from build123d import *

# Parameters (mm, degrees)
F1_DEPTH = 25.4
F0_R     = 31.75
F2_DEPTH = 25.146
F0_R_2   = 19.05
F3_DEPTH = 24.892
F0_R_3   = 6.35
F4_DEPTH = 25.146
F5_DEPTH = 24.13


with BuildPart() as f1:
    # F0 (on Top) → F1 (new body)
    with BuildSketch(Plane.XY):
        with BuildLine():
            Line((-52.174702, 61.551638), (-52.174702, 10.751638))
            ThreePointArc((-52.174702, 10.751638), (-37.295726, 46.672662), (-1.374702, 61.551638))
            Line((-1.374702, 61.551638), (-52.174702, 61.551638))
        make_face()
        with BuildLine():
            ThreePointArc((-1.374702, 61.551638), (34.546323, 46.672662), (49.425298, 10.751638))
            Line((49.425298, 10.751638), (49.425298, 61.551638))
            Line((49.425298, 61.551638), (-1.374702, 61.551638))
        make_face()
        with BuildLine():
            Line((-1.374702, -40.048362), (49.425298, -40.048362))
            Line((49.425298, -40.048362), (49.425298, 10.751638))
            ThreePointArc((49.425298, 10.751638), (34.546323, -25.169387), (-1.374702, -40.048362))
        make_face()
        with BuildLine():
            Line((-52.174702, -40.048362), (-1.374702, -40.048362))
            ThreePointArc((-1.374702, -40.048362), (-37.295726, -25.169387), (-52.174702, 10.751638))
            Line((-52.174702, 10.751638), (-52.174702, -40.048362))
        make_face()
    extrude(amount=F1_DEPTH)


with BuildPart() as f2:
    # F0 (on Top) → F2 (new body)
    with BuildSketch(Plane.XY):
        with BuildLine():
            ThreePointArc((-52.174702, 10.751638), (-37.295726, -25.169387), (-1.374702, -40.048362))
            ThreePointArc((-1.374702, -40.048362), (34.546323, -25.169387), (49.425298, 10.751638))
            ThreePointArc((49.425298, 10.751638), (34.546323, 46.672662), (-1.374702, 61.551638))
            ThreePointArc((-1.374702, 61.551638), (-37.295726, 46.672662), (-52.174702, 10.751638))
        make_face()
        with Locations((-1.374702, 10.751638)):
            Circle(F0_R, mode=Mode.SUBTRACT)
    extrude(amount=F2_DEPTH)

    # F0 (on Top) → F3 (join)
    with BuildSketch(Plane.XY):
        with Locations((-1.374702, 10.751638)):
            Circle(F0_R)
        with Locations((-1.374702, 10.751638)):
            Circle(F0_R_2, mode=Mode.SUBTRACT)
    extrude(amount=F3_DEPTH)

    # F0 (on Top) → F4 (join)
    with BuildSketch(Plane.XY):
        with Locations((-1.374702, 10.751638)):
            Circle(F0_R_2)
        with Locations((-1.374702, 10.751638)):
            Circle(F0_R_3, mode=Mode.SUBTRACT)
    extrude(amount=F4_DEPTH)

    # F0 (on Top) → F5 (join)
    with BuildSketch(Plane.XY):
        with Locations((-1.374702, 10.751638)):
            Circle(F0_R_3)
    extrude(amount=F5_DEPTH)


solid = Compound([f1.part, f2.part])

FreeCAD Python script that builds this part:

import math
import FreeCAD as App
import Part
import Sketcher
Q = App.Units.Quantity

doc = App.newDocument("Part")
body = doc.addObject("PartDesign::Body", "Body")
body.AllowCompound = True

# Sketch on XY plane
sketch1 = body.newObject("Sketcher::SketchObject", "Sketch")
sketch1.AttachmentSupport = (doc.getObject("XY_Plane"), [""])
sketch1.MapMode = "FlatFace"
sketch1.addGeometry([
    Part.LineSegment(App.Vector(-52, 62, 0), App.Vector(-52, 11, 0)),  # 0
    Part.ArcOfCircle(Part.Circle(App.Vector(-1, 11, 0), App.Vector(0, 0, 1), 51), math.radians(90), math.radians(180)),  # 1
    Part.LineSegment(App.Vector(-1, 62, 0), App.Vector(-52, 62, 0)),  # 2
    Part.ArcOfCircle(Part.Circle(App.Vector(-1, 11, 0), App.Vector(0, 0, 1), 51), math.radians(0), math.radians(90)),  # 3
    Part.LineSegment(App.Vector(49, 11, 0), App.Vector(49, 62, 0)),  # 4
    Part.LineSegment(App.Vector(49, 62, 0), App.Vector(-1, 62, 0)),  # 5
    Part.LineSegment(App.Vector(-1, -40, 0), App.Vector(49, -40, 0)),  # 6
    Part.LineSegment(App.Vector(49, -40, 0), App.Vector(49, 11, 0)),  # 7
    Part.ArcOfCircle(Part.Circle(App.Vector(-1, 11, 0), App.Vector(0, 0, 1), 51), math.radians(-90), math.radians(0)),  # 8
    Part.LineSegment(App.Vector(-52, -40, 0), App.Vector(-1, -40, 0)),  # 9
    Part.ArcOfCircle(Part.Circle(App.Vector(-1, 11, 0), App.Vector(0, 0, 1), 51), math.radians(180), math.radians(270)),  # 10
    Part.LineSegment(App.Vector(-52, 11, 0), App.Vector(-52, -40, 0)),  # 11
], False)
sketch1.addConstraint([
    Sketcher.Constraint("Tangent", 0, 2, 1, 2),
    Sketcher.Constraint("Tangent", 1, 1, 2, 1),
    Sketcher.Constraint("Coincident", 2, 2, 0, 1),
    Sketcher.Constraint("Tangent", 3, 1, 4, 1),
    Sketcher.Constraint("Coincident", 4, 2, 5, 1),
    Sketcher.Constraint("Tangent", 5, 2, 3, 2),
    Sketcher.Constraint("Coincident", 6, 2, 7, 1),
    Sketcher.Constraint("Tangent", 7, 2, 8, 2),
    Sketcher.Constraint("Tangent", 8, 1, 6, 1),
    Sketcher.Constraint("Tangent", 9, 2, 10, 2),
    Sketcher.Constraint("Tangent", 10, 1, 11, 1),
    Sketcher.Constraint("Coincident", 11, 2, 9, 1),
    Sketcher.Constraint("Vertical", 0),
    Sketcher.Constraint("Horizontal", 2),
    Sketcher.Constraint("Vertical", 4),
    Sketcher.Constraint("Horizontal", 5),
    Sketcher.Constraint("Horizontal", 6),
    Sketcher.Constraint("Vertical", 7),
    Sketcher.Constraint("Horizontal", 9),
    Sketcher.Constraint("Vertical", 11),
    Sketcher.Constraint("Coincident", 3, 3, 1, 3),
    Sketcher.Constraint("Coincident", 8, 3, 1, 3),
    Sketcher.Constraint("Coincident", 10, 3, 1, 3),
    Sketcher.Constraint("Equal", 1, 3),
    Sketcher.Constraint("Equal", 3, 8),
    Sketcher.Constraint("Equal", 8, 10),
    Sketcher.Constraint("Radius", 1, Q("2.0000001 in")),
    Sketcher.Constraint("DistanceX", 1, 3, -1, 1, 1.3747),
    Sketcher.Constraint("DistanceY", -1, 1, 3, 3, 10.751638),
])
pad1 = body.newObject("PartDesign::Pad", "Pad")
pad1.Profile = sketch1
pad1.Length = Q("1 in")
body2 = doc.addObject("PartDesign::Body", "Body001")

# Sketch on XY plane
sketch2 = body2.newObject("Sketcher::SketchObject", "Sketch001")
sketch2.AttachmentSupport = (doc.getObject("XY_Plane001"), [""])
sketch2.MapMode = "FlatFace"
sketch2.addGeometry([
    Part.ArcOfCircle(Part.Circle(App.Vector(-1, 11, 0), App.Vector(0, 0, 1), 51), math.radians(180), math.radians(270)),  # 0
    Part.ArcOfCircle(Part.Circle(App.Vector(-1, 11, 0), App.Vector(0, 0, 1), 51), math.radians(-90), math.radians(0)),  # 1
    Part.ArcOfCircle(Part.Circle(App.Vector(-1, 11, 0), App.Vector(0, 0, 1), 51), math.radians(0), math.radians(90)),  # 2
    Part.ArcOfCircle(Part.Circle(App.Vector(-1, 11, 0), App.Vector(0, 0, 1), 51), math.radians(90), math.radians(180)),  # 3
    Part.Circle(App.Vector(-1, 11, 0), App.Vector(0, 0, 1), 32),  # 4
], False)
sketch2.addConstraint([
    Sketcher.Constraint("Tangent", 0, 2, 1, 1),
    Sketcher.Constraint("Tangent", 1, 2, 2, 1),
    Sketcher.Constraint("Tangent", 2, 2, 3, 1),
    Sketcher.Constraint("Tangent", 3, 2, 0, 1),
    Sketcher.Constraint("Coincident", 4, 3, 0, 3),
    Sketcher.Constraint("Equal", 0, 1),
    Sketcher.Constraint("Horizontal", 4, 3, 1, 2),
    Sketcher.Constraint("Horizontal", 1, 2, 3, 2),
    Sketcher.Constraint("Vertical", 4, 3, 0, 2),
    Sketcher.Constraint("Vertical", 0, 2, 2, 2),
    Sketcher.Constraint("Radius", 0, Q("2 in")),
    Sketcher.Constraint("Diameter", 4, Q("2.5 in")),
    Sketcher.Constraint("DistanceX", 1, 3, -1, 1, 1.3747),
    Sketcher.Constraint("DistanceY", -1, 1, 2, 3, 10.751638),
])
pad2 = body2.newObject("PartDesign::Pad", "Pad001")
pad2.Profile = sketch2
pad2.Length = Q("0.99 in")

# Sketch on XY plane
sketch3 = body2.newObject("Sketcher::SketchObject", "Sketch002")
sketch3.AttachmentSupport = (doc.getObject("XY_Plane001"), [""])
sketch3.MapMode = "FlatFace"
sketch3.addGeometry([
    Part.Circle(App.Vector(-1, 11, 0), App.Vector(0, 0, 1), 32),
    Part.Circle(App.Vector(-1, 11, 0), App.Vector(0, 0, 1), 19),
], False)
sketch3.addConstraint([
    Sketcher.Constraint("Coincident", 1, 3, 0, 3),
    Sketcher.Constraint("Diameter", 0, Q("2.5 in")),
    Sketcher.Constraint("Diameter", 1, Q("1.5 in")),
    Sketcher.Constraint("DistanceX", 0, 3, -1, 1, 1.374702),
    Sketcher.Constraint("DistanceY", -1, 1, 0, 3, 10.751638),
])
pad3 = body2.newObject("PartDesign::Pad", "Pad002")
pad3.Profile = sketch3
pad3.Length = Q("0.98 in")

# Sketch on XY plane
sketch4 = body2.newObject("Sketcher::SketchObject", "Sketch003")
sketch4.AttachmentSupport = (doc.getObject("XY_Plane001"), [""])
sketch4.MapMode = "FlatFace"
sketch4.addGeometry([
    Part.Circle(App.Vector(-1, 11, 0), App.Vector(0, 0, 1), 19),
    Part.Circle(App.Vector(-1, 11, 0), App.Vector(0, 0, 1), 6),
], False)
sketch4.addConstraint([
    Sketcher.Constraint("Coincident", 1, 3, 0, 3),
    Sketcher.Constraint("Diameter", 0, Q("1.5 in")),
    Sketcher.Constraint("Diameter", 1, Q("0.5 in")),
    Sketcher.Constraint("DistanceX", 0, 3, -1, 1, 1.374702),
    Sketcher.Constraint("DistanceY", -1, 1, 0, 3, 10.751638),
])
pad4 = body2.newObject("PartDesign::Pad", "Pad003")
pad4.Profile = sketch4
pad4.Length = Q("0.99 in")

# Sketch on XY plane
sketch5 = body2.newObject("Sketcher::SketchObject", "Sketch004")
sketch5.AttachmentSupport = (doc.getObject("XY_Plane001"), [""])
sketch5.MapMode = "FlatFace"
sketch5.addGeometry(Part.Circle(App.Vector(-1, 11, 0), App.Vector(0, 0, 1), 6), False)
sketch5.addConstraint([
    Sketcher.Constraint("Diameter", 0, Q("0.5 in")),
    Sketcher.Constraint("DistanceX", 0, 3, -1, 1, 1.374702),
    Sketcher.Constraint("DistanceY", -1, 1, 0, 3, 10.751638),
])
pad5 = body2.newObject("PartDesign::Pad", "Pad004")
pad5.Profile = sketch5
pad5.Length = Q("0.95 in")

doc.recompute()
